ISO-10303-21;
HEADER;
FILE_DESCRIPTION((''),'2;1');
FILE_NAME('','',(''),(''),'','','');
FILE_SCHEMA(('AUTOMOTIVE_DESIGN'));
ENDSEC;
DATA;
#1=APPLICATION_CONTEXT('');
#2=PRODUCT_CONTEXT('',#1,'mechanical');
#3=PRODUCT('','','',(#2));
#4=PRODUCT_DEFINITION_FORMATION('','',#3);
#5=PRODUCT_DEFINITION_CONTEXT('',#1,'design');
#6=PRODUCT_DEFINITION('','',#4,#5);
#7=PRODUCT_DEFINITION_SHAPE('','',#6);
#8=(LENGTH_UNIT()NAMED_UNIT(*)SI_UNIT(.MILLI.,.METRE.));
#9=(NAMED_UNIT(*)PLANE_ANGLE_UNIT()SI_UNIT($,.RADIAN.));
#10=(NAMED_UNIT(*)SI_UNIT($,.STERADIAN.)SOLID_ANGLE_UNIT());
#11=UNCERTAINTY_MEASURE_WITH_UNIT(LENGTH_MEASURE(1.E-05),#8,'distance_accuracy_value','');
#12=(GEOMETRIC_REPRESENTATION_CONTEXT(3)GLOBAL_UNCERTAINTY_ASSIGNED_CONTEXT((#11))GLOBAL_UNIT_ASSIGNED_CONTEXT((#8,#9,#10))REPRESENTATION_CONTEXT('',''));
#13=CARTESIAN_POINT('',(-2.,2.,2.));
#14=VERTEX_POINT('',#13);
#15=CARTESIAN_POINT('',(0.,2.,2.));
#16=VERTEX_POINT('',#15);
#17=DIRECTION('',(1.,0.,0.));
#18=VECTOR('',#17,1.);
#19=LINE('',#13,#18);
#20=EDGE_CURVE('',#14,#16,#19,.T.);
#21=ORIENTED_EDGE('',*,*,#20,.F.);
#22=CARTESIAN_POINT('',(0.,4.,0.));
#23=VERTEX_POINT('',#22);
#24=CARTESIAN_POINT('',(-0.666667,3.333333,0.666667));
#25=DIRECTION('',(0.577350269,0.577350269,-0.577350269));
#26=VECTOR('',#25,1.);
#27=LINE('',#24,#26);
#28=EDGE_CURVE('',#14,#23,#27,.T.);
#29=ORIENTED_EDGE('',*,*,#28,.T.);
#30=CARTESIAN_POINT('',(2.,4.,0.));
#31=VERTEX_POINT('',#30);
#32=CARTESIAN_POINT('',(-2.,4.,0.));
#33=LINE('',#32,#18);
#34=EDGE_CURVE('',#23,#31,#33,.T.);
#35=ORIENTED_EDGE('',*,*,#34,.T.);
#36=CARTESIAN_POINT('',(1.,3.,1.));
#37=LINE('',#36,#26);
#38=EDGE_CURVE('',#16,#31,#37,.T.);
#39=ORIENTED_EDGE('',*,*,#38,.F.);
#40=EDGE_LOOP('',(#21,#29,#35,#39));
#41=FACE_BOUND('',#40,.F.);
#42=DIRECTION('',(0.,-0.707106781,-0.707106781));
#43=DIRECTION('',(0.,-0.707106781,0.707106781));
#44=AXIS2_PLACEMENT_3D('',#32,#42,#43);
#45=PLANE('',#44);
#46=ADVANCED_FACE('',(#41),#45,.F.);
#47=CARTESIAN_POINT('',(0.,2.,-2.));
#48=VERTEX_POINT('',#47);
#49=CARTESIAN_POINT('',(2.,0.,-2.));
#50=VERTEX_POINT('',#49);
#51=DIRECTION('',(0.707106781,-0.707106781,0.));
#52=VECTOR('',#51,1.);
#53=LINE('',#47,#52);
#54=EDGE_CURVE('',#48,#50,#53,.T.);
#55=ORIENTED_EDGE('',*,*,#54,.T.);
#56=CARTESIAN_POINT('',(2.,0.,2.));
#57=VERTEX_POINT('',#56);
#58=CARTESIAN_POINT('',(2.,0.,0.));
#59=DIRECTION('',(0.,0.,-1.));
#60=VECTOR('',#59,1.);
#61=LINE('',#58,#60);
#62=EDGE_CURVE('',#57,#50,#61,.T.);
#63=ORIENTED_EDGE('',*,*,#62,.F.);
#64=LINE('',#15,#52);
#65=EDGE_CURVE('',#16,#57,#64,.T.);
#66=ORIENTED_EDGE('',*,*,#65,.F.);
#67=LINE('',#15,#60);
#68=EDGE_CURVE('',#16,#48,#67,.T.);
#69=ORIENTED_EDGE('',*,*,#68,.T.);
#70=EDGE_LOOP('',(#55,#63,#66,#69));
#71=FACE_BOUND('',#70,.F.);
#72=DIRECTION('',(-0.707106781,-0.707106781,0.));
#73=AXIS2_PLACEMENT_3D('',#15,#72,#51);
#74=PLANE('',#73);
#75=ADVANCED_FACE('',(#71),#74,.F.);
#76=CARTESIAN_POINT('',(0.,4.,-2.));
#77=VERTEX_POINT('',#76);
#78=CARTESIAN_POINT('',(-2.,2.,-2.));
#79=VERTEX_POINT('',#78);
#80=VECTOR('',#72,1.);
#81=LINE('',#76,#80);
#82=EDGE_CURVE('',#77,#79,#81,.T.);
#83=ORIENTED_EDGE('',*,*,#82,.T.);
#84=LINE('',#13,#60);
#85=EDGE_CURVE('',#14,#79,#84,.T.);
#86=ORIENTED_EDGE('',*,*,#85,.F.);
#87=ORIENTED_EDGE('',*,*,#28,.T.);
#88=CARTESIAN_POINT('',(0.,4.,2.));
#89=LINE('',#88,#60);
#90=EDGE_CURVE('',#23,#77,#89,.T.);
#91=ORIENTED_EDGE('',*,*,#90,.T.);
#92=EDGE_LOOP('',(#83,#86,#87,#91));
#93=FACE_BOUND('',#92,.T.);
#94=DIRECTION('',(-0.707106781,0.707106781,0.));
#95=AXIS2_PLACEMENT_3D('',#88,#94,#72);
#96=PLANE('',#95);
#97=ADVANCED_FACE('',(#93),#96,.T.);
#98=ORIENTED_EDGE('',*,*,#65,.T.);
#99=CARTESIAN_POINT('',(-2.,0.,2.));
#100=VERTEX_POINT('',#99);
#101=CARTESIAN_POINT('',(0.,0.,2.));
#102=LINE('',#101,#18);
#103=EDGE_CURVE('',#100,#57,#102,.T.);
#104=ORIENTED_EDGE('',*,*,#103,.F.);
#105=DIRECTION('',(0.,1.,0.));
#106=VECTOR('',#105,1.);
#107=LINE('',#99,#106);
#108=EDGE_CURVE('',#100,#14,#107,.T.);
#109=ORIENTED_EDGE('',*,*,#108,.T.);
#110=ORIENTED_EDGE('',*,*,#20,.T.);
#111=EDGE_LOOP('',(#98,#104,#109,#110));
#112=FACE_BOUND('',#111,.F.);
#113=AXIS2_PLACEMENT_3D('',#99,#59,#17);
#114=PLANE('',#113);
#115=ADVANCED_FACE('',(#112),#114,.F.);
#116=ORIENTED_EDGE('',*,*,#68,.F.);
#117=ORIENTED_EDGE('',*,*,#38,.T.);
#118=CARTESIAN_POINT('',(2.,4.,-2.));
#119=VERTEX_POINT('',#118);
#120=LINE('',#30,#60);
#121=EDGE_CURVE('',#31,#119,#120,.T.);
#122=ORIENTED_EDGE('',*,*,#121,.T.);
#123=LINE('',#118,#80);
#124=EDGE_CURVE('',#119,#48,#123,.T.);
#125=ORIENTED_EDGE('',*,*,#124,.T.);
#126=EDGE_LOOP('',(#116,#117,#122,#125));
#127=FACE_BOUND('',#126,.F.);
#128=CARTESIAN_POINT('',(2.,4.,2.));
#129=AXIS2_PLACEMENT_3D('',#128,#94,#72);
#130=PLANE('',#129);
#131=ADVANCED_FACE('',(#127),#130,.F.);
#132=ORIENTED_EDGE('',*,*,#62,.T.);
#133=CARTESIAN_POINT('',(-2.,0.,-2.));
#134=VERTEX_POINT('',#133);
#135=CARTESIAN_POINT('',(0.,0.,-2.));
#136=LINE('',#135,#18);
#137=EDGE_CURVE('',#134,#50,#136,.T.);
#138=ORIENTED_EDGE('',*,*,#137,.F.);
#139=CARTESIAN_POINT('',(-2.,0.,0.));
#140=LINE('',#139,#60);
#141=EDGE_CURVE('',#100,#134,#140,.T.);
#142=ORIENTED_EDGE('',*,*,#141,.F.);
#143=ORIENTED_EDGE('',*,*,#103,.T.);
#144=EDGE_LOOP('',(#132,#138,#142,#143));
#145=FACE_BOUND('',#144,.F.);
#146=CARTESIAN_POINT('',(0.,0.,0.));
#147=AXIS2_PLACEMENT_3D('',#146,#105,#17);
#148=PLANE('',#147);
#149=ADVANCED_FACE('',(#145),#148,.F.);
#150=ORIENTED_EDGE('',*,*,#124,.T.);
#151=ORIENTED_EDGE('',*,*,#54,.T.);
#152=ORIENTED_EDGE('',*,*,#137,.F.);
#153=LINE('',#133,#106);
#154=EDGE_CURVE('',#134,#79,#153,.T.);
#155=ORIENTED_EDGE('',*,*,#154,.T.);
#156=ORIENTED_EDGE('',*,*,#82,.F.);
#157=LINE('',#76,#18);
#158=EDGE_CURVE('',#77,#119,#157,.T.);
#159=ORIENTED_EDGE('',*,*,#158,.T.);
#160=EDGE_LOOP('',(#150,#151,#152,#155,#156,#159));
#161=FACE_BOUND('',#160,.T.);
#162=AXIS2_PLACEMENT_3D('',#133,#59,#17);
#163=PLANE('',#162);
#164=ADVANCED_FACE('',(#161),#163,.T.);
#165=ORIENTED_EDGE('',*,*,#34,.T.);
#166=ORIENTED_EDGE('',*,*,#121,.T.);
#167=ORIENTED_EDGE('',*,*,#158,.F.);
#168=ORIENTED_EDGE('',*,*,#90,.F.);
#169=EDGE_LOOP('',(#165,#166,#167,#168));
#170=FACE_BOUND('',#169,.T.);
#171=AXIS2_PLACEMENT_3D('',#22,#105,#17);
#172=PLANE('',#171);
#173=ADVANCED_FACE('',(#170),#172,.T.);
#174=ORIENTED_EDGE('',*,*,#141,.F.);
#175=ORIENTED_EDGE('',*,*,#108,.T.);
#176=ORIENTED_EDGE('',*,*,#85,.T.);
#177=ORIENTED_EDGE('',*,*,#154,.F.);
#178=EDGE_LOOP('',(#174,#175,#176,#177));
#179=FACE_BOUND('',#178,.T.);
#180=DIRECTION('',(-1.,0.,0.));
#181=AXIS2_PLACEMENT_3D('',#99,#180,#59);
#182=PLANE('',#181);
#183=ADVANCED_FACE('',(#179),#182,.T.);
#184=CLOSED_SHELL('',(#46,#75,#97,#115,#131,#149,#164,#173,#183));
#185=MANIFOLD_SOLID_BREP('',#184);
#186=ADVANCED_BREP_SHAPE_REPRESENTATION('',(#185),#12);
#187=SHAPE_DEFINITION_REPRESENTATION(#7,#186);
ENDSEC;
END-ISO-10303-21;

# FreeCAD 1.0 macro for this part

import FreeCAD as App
import Part
import Sketcher


def add_polygon(sketch, points):
    """Adds a closed chain of lines whose ends are joined by coincident constraints."""
    first, n = sketch.GeometryCount, len(points)
    for a, b in zip(points, points[1:] + points[:1]):
        sketch.addGeometry(Part.LineSegment(App.Vector(*a, 0), App.Vector(*b, 0)), False)
    for i in range(n):
        sketch.addConstraint(Sketcher.Constraint("Coincident", first + i, 2, first + (i + 1) % n, 1))

doc = App.newDocument("Part")
params = doc.addObject("Spreadsheet::Sheet", "Params")
for row, (alias, value) in enumerate([
    ("sketch1_width", "4 mm"),
    ("pad1_length", "4 mm"),
    ("sketch2_width", "2 mm"),
    ("pocket1_length", "4 mm"),
    ("sketch3_width", "2 mm"),
    ("pocket2_length", "4 mm"),
], start=1):
    params.set(f"A{row}", alias)
    params.set(f"B{row}", "=" + value)
    params.setAlias(f"B{row}", alias)

body = doc.addObject("PartDesign::Body", "Body")

# Sketch on XZ plane
sketch1 = doc.addObject("Sketcher::SketchObject", "Sketch")
body.addObject(sketch1)
sketch1.AttachmentSupport = (doc.XZ_Plane, [""])
sketch1.MapMode = "FlatFace"
add_polygon(sketch1, [(-2, -2), (-2, 2), (2, 2), (2, -2)])  # lines 0-3
sketch1.addConstraint([
    Sketcher.Constraint("Vertical", 0),
    Sketcher.Constraint("Horizontal", 1),
    Sketcher.Constraint("Vertical", 2),
    Sketcher.Constraint("Horizontal", 3),
    Sketcher.Constraint("Symmetric", 0, 2, 2, 2, -1, 1),
    Sketcher.Constraint("Equal", 3, 0),
    Sketcher.Constraint("DistanceX", 1, 1, 1, 2, 4.0),
])
sketch1.setExpression("Constraints[10]", "Params.sketch1_width")
pad1 = doc.addObject("PartDesign::Pad", "Pad")
body.addObject(pad1)
pad1.Profile = sketch1
pad1.setExpression("Length", "Params.pad1_length")
pad1.Reversed = True

# Sketch on YZ plane
sketch2 = doc.addObject("Sketcher::SketchObject", "Sketch001")
body.addObject(sketch2)
sketch2.AttachmentSupport = (doc.YZ_Plane, [""])
sketch2.MapMode = "FlatFace"
sketch2.AttachmentOffset = App.Placement(App.Vector(0, 0, -2), App.Rotation())
add_polygon(sketch2, [(4, 0), (2, 2), (4, 2)])  # lines 0-2
sketch2.addConstraint([
    Sketcher.Constraint("Horizontal", 1),
    Sketcher.Constraint("Vertical", 2),
    Sketcher.Constraint("PointOnObject", 2, 2, -1),
    Sketcher.Constraint("Equal", 1, 2),
    Sketcher.Constraint("DistanceX", 1, 1, 1, 2, 2.0),
    Sketcher.Constraint("DistanceX", -1, 1, 0, 2, 2.0),
])
sketch2.setExpression("Constraints[7]", "Params.sketch2_width")
pocket1 = doc.addObject("PartDesign::Pocket", "Pocket")
body.addObject(pocket1)
pocket1.Profile = sketch2
pocket1.setExpression("Length", "Params.pocket1_length")
pocket1.Reversed = True

# Sketch on XY plane
sketch3 = doc.addObject("Sketcher::SketchObject", "Sketch002")
body.addObject(sketch3)
sketch3.AttachmentSupport = (doc.XY_Plane, [""])
sketch3.MapMode = "FlatFace"
sketch3.AttachmentOffset = App.Placement(App.Vector(0, 0, 2), App.Rotation())
add_polygon(sketch3, [(0, 4), (-2, 4), (-2, 2)])  # lines 0-2
add_polygon(sketch3, [(2, 4), (0, 2), (2, 0)])  # lines 3-5
sketch3.addConstraint([
    Sketcher.Constraint("Horizontal", 0),
    Sketcher.Constraint("Vertical", 1),
    Sketcher.Constraint("Vertical", 5),
    Sketcher.Constraint("Symmetric", 0, 2, 5, 2, -2),
    Sketcher.Constraint("PointOnObject", 2, 2, -2),
    Sketcher.Constraint("PointOnObject", 3, 2, -2),
    Sketcher.Constraint("PointOnObject", 4, 2, -1),
    Sketcher.Constraint("Parallel", 2, 3),
    Sketcher.Constraint("Perpendicular", 3, 4),
    Sketcher.Constraint("Equal", 0, 1),
    Sketcher.Constraint("DistanceX", 0, 2, 0, 1, 2.0),
])
sketch3.setExpression("Constraints[16]", "Params.sketch3_width")
pocket2 = doc.addObject("PartDesign::Pocket", "Pocket001")
body.addObject(pocket2)
pocket2.Profile = sketch3
pocket2.setExpression("Length", "Params.pocket2_length")

doc.recompute()
